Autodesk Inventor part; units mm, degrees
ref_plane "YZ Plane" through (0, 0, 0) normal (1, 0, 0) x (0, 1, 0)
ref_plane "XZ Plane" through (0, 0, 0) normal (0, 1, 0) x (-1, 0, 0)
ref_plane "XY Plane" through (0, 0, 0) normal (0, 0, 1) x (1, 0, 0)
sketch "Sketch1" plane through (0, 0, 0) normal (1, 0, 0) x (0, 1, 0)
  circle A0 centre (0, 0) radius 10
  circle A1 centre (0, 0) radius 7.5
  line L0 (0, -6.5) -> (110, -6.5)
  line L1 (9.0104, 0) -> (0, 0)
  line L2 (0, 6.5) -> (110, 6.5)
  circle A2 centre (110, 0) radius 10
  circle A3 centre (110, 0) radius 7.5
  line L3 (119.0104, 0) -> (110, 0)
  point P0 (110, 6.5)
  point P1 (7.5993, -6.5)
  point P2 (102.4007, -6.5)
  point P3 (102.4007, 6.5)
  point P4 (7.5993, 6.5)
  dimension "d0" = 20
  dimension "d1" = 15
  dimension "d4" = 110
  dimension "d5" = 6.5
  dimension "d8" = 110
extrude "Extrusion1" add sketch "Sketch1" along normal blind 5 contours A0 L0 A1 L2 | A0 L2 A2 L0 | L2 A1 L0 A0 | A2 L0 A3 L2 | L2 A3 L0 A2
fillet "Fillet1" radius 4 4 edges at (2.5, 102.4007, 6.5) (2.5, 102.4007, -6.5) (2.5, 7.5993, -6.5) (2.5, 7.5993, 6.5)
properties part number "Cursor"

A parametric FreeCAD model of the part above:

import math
import FreeCAD as App
import Part
import Sketcher
from FreeCAD import Vector
Q = App.Units.Quantity


def edges_at(feature, points):
    """Names of the edges that pass closest to the given points."""
    edges = feature.Shape.Edges
    near = lambda p: min(range(len(edges)), key=lambda i: edges[i].distToShape(Part.Vertex(*p))[0])
    return sorted({f"Edge{near(p) + 1}" for p in points})

doc = App.newDocument("Part")
body = doc.addObject("PartDesign::Body", "Body")

sketch1 = body.newObject("Sketcher::SketchObject", "Sketch")
sketch1.AttachmentSupport = (doc.getObject("YZ_Plane"), [""])
sketch1.MapMode = "FlatFace"
sketch1.addGeometry(Part.LineSegment(Vector(8, -6, 0), Vector(102, -6, 0)), False)
sketch1.addGeometry(Part.ArcOfCircle(Part.Circle(Vector(110, 0, 0), Vector(0, 0, 1), 10), math.radians(-139), math.radians(139)), False)
sketch1.addGeometry(Part.LineSegment(Vector(102, 6, 0), Vector(8, 6, 0)), False)
sketch1.addGeometry(Part.ArcOfCircle(Part.Circle(Vector(0, 0, 0), Vector(0, 0, 1), 10), math.radians(41), math.radians(319)), False)
sketch1.addGeometry(Part.Circle(Vector(0, 0, 0), Vector(0, 0, 1), 8), False)
sketch1.addGeometry(Part.Circle(Vector(110, 0, 0), Vector(0, 0, 1), 8), False)
sketch1.addConstraint(Sketcher.Constraint("Coincident", 0, 2, 1, 1))
sketch1.addConstraint(Sketcher.Constraint("Coincident", 1, 2, 2, 1))
sketch1.addConstraint(Sketcher.Constraint("Coincident", 2, 2, 3, 1))
sketch1.addConstraint(Sketcher.Constraint("Coincident", 3, 2, 0, 1))
sketch1.addConstraint(Sketcher.Constraint("Horizontal", 0))
sketch1.addConstraint(Sketcher.Constraint("Horizontal", 2))
sketch1.addConstraint(Sketcher.Constraint("Coincident", 3, 3, -1, 1))
sketch1.addConstraint(Sketcher.Constraint("Coincident", 4, 3, -1, 1))
sketch1.addConstraint(Sketcher.Constraint("Coincident", 5, 3, 1, 3))
sketch1.addConstraint(Sketcher.Constraint("Equal", 1, 3))
sketch1.addConstraint(Sketcher.Constraint("Equal", 4, 5))
sketch1.addConstraint(Sketcher.Constraint("Symmetric", 0, 2, 1, 2, -1))
sketch1.addConstraint(Sketcher.Constraint("Diameter", 4, Q("15 mm")))
sketch1.addConstraint(Sketcher.Constraint("Radius", 1, Q("10 mm")))
sketch1.addConstraint(Sketcher.Constraint("DistanceX", -1, 1, 1, 3, Q("110 mm")))
sketch1.addConstraint(Sketcher.Constraint("DistanceY", 0, 2, -1, 1, Q("6.5 mm")))
pad1 = body.newObject("PartDesign::Pad", "Pad")
pad1.Profile = sketch1
pad1.Length = 5
doc.recompute()

fillet = body.newObject("PartDesign::Fillet", "Fillet")
fillet.Base = (pad1, edges_at(pad1, [
    (2.5, 102.401, 6.5),
    (2.5, 102.401, -6.5),
    (2.5, 7.599, -6.5),
    (2.5, 7.599, 6.5),
]))
fillet.Radius = 4

doc.recompute()
